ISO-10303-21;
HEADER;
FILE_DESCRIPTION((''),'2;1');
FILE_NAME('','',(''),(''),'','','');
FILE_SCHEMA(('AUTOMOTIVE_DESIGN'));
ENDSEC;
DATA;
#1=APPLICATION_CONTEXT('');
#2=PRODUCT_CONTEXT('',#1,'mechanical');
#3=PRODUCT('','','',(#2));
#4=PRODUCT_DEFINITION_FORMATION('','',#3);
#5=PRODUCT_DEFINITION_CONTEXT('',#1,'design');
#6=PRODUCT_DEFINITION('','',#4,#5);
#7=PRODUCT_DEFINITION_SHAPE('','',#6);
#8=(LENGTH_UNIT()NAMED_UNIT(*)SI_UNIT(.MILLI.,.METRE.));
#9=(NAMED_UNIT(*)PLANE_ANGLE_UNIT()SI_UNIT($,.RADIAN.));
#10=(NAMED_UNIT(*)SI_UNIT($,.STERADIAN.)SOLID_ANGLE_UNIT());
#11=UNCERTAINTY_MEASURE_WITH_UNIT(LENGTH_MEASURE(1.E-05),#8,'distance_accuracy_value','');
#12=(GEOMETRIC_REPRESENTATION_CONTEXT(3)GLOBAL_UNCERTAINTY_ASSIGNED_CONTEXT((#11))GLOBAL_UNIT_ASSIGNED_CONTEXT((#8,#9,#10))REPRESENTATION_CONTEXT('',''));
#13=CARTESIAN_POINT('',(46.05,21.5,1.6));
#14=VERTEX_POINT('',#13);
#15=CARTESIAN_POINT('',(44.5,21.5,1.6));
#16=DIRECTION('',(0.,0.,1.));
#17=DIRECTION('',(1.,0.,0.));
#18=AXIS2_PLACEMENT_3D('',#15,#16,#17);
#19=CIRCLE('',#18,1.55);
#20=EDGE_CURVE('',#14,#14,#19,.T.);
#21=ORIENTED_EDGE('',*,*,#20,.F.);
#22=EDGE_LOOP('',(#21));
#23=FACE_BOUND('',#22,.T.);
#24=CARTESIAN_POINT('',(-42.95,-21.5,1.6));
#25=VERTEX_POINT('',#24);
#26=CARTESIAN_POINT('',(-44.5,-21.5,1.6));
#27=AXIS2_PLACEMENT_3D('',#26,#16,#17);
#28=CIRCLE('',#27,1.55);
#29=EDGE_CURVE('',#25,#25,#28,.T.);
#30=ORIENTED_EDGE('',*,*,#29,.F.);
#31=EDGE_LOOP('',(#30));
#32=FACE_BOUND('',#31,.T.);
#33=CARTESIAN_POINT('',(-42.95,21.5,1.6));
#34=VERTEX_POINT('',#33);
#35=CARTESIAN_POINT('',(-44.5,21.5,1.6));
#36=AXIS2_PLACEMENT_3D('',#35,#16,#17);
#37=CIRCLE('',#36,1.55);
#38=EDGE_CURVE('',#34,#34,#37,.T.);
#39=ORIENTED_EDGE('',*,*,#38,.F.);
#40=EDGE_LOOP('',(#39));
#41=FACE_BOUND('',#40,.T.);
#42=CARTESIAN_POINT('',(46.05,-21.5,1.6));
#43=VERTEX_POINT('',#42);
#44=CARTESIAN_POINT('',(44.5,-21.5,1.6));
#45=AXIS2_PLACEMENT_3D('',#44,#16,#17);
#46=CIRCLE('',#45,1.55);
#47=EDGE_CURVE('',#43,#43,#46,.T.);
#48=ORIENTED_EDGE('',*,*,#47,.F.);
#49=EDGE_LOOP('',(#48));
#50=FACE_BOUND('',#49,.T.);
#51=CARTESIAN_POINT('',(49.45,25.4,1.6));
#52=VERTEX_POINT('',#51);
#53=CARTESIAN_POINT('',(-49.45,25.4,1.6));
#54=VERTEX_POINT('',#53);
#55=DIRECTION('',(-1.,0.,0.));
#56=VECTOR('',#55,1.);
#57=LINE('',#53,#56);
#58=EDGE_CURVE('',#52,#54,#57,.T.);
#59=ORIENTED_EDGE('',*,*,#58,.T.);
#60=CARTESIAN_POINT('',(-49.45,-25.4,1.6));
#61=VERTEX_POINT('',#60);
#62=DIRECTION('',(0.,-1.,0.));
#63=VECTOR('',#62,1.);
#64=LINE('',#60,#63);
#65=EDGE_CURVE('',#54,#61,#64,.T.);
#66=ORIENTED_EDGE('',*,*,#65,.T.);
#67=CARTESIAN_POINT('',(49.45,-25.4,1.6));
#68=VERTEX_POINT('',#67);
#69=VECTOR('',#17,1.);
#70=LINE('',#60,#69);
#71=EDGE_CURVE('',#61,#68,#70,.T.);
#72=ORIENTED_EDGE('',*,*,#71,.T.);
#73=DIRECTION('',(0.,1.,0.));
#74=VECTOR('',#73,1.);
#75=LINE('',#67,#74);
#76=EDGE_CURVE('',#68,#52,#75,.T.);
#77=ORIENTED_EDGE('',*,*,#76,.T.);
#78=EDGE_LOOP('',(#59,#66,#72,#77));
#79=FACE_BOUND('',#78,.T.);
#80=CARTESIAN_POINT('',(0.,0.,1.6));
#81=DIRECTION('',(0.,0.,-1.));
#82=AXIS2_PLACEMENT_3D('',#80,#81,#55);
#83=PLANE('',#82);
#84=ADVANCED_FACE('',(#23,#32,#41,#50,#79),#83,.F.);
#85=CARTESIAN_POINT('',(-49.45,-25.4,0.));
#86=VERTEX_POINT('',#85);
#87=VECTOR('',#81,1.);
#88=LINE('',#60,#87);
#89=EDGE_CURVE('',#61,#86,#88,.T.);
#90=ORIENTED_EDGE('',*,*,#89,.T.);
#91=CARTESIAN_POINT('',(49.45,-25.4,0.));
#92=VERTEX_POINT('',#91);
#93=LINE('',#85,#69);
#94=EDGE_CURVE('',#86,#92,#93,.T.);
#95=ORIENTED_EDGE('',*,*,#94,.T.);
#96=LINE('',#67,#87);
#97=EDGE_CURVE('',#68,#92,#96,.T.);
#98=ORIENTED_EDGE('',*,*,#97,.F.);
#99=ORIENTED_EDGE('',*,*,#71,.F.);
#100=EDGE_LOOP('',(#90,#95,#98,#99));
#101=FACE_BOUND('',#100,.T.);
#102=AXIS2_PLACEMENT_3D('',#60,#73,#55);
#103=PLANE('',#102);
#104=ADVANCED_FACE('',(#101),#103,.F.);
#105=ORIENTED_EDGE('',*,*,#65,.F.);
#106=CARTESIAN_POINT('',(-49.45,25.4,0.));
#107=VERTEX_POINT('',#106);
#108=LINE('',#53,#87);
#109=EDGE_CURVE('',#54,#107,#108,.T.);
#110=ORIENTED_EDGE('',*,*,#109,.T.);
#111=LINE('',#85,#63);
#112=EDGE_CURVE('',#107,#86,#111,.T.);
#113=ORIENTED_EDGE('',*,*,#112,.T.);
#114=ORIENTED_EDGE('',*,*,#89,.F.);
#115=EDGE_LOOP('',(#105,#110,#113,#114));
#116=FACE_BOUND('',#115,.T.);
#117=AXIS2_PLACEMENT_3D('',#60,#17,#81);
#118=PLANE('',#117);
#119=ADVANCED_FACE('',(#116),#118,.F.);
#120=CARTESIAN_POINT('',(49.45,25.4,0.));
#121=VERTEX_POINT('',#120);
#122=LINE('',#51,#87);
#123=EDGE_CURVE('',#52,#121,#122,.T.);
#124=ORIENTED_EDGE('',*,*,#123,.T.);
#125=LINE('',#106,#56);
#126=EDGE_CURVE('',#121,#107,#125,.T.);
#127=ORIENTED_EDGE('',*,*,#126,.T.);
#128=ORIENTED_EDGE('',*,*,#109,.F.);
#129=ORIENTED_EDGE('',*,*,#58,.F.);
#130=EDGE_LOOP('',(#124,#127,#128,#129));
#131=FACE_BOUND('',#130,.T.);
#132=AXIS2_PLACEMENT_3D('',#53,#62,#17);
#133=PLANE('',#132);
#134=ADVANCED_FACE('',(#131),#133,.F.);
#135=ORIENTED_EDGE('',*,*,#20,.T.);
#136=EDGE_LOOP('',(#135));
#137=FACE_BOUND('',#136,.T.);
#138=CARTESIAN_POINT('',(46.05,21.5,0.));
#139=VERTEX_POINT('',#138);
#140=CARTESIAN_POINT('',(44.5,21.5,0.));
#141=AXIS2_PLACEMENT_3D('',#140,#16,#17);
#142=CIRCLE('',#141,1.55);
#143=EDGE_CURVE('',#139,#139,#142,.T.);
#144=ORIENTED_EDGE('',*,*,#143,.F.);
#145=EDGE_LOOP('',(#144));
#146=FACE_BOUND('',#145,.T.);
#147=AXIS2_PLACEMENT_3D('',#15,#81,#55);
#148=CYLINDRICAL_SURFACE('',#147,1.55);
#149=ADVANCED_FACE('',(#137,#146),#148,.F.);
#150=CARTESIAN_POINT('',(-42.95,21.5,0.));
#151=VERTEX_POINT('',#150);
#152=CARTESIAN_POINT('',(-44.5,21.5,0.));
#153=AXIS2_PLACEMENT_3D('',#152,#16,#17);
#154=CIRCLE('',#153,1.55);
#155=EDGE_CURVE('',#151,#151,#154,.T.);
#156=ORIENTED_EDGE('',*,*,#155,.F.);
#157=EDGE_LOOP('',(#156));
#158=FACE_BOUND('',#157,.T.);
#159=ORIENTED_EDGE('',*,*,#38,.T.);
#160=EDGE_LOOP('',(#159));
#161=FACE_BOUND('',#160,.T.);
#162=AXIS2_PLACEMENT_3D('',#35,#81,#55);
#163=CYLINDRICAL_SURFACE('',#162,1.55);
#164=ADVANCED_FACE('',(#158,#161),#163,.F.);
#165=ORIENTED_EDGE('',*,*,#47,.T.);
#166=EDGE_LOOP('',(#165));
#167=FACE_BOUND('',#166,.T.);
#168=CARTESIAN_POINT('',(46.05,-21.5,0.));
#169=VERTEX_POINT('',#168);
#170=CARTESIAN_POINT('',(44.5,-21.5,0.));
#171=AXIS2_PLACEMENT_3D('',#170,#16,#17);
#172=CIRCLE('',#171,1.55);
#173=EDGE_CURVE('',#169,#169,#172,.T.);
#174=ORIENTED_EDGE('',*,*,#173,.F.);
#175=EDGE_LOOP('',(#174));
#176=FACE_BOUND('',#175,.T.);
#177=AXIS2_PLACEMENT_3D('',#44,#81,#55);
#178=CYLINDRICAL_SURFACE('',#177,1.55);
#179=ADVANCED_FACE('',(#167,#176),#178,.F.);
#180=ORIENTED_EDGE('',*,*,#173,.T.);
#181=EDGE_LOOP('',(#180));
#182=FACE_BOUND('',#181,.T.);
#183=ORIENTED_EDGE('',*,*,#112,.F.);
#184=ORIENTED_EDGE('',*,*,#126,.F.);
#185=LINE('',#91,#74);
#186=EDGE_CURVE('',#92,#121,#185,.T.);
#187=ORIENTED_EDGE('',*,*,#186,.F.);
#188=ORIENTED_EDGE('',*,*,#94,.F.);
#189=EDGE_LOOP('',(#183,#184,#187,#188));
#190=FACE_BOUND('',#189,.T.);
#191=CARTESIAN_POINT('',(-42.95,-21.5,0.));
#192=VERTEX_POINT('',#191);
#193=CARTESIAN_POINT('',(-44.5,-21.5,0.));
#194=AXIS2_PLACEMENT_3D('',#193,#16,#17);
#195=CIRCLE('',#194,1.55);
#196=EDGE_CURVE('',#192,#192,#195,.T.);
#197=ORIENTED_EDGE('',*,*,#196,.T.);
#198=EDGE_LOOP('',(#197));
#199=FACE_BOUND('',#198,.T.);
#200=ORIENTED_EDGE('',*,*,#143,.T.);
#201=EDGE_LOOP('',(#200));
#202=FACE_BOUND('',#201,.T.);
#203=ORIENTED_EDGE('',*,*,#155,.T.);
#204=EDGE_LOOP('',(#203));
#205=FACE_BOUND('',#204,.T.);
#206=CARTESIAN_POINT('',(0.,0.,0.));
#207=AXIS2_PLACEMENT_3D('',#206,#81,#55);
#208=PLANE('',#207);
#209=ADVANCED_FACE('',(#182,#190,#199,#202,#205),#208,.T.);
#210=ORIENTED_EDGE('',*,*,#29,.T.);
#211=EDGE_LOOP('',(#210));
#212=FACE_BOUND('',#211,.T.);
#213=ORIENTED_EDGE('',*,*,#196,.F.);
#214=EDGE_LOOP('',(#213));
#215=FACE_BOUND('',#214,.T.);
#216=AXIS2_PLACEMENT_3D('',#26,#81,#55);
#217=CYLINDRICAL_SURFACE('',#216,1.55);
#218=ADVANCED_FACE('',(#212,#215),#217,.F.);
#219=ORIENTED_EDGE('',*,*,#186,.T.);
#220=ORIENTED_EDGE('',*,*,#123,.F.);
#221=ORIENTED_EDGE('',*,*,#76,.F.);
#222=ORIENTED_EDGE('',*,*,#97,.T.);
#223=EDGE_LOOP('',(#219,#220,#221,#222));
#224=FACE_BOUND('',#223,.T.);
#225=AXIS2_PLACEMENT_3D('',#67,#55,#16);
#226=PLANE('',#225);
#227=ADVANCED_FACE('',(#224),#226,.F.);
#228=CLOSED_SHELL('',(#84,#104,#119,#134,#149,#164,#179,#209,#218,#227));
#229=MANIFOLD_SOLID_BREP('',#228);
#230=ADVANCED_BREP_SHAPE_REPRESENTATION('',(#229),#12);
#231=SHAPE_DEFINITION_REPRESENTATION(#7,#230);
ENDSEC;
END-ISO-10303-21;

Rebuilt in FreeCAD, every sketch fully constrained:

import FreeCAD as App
import Part
import Sketcher
from FreeCAD import Vector


def add_polygon(sketch, points):
    """Adds a closed chain of lines whose ends are joined by coincident constraints."""
    first, n = sketch.GeometryCount, len(points)
    for a, b in zip(points, points[1:] + points[:1]):
        sketch.addGeometry(Part.LineSegment(App.Vector(*a, 0), App.Vector(*b, 0)), False)
    for i in range(n):
        sketch.addConstraint(Sketcher.Constraint("Coincident", first + i, 2, first + (i + 1) % n, 1))

doc = App.newDocument("Part")
params = doc.addObject("Spreadsheet::Sheet", "Params")
for row, (alias, value) in enumerate([
    ("sketch1_diameter", "3.1 mm"),
    ("sketch1_width", "98.9 mm"),
    ("sketch1_height", "50.8 mm"),
    ("pad1_length", "1.6 mm"),
], start=1):
    params.set(f"A{row}", alias)
    params.set(f"B{row}", "=" + value)
    params.setAlias(f"B{row}", alias)

body = doc.addObject("PartDesign::Body", "Body")

# Sketch on XY plane
sketch1 = body.newObject("Sketcher::SketchObject", "Sketch")
sketch1.AttachmentSupport = (doc.getObject("XY_Plane"), [""])
sketch1.MapMode = "FlatFace"
add_polygon(sketch1, [(-49.5, 25.4), (-49.5, -25.4), (49.5, -25.4), (49.5, 25.4)])  # lines 0-3
sketch1.addGeometry(Part.Circle(Vector(-44.5, -21.5, 0), Vector(0, 0, 1), 1.6), False)  # 4
sketch1.addGeometry(Part.Circle(Vector(44.5, -21.5, 0), Vector(0, 0, 1), 1.6), False)  # 5
sketch1.addGeometry(Part.Circle(Vector(-44.5, 21.5, 0), Vector(0, 0, 1), 1.6), False)  # 6
sketch1.addGeometry(Part.Circle(Vector(44.5, 21.5, 0), Vector(0, 0, 1), 1.6), False)  # 7
sketch1.addConstraint(Sketcher.Constraint("Vertical", 0))
sketch1.addConstraint(Sketcher.Constraint("Horizontal", 1))
sketch1.addConstraint(Sketcher.Constraint("Vertical", 2))
sketch1.addConstraint(Sketcher.Constraint("Horizontal", 3))
sketch1.addConstraint(Sketcher.Constraint("Equal", 4, 5))
sketch1.addConstraint(Sketcher.Constraint("Equal", 5, 6))
sketch1.addConstraint(Sketcher.Constraint("Equal", 6, 7))
sketch1.addConstraint(Sketcher.Constraint("Symmetric", 5, 3, 6, 3, -1, 1))
sketch1.addConstraint(Sketcher.Constraint("Symmetric", 4, 3, 7, 3, -1, 1))
sketch1.addConstraint(Sketcher.Constraint("Symmetric", 0, 2, 2, 2, -1, 1))
sketch1.addConstraint(Sketcher.Constraint("Symmetric", 4, 3, 5, 3, -2))
sketch1.addConstraint(Sketcher.Constraint("Diameter", 4, 3.1))
sketch1.addConstraint(Sketcher.Constraint("DistanceX", 1, 1, 1, 2, 98.9))
sketch1.addConstraint(Sketcher.Constraint("DistanceY", 0, 2, 0, 1, 50.8))
sketch1.addConstraint(Sketcher.Constraint("DistanceX", 4, 3, 5, 3, 89.0))
sketch1.addConstraint(Sketcher.Constraint("DistanceY", 4, 3, 6, 3, 43.0))
sketch1.setExpression("Constraints[15]", "Params.sketch1_diameter")
sketch1.setExpression("Constraints[16]", "Params.sketch1_width")
sketch1.setExpression("Constraints[17]", "Params.sketch1_height")
pad1 = body.newObject("PartDesign::Pad", "Pad")
pad1.Profile = sketch1
pad1.setExpression("Length", "Params.pad1_length")

doc.recompute()
